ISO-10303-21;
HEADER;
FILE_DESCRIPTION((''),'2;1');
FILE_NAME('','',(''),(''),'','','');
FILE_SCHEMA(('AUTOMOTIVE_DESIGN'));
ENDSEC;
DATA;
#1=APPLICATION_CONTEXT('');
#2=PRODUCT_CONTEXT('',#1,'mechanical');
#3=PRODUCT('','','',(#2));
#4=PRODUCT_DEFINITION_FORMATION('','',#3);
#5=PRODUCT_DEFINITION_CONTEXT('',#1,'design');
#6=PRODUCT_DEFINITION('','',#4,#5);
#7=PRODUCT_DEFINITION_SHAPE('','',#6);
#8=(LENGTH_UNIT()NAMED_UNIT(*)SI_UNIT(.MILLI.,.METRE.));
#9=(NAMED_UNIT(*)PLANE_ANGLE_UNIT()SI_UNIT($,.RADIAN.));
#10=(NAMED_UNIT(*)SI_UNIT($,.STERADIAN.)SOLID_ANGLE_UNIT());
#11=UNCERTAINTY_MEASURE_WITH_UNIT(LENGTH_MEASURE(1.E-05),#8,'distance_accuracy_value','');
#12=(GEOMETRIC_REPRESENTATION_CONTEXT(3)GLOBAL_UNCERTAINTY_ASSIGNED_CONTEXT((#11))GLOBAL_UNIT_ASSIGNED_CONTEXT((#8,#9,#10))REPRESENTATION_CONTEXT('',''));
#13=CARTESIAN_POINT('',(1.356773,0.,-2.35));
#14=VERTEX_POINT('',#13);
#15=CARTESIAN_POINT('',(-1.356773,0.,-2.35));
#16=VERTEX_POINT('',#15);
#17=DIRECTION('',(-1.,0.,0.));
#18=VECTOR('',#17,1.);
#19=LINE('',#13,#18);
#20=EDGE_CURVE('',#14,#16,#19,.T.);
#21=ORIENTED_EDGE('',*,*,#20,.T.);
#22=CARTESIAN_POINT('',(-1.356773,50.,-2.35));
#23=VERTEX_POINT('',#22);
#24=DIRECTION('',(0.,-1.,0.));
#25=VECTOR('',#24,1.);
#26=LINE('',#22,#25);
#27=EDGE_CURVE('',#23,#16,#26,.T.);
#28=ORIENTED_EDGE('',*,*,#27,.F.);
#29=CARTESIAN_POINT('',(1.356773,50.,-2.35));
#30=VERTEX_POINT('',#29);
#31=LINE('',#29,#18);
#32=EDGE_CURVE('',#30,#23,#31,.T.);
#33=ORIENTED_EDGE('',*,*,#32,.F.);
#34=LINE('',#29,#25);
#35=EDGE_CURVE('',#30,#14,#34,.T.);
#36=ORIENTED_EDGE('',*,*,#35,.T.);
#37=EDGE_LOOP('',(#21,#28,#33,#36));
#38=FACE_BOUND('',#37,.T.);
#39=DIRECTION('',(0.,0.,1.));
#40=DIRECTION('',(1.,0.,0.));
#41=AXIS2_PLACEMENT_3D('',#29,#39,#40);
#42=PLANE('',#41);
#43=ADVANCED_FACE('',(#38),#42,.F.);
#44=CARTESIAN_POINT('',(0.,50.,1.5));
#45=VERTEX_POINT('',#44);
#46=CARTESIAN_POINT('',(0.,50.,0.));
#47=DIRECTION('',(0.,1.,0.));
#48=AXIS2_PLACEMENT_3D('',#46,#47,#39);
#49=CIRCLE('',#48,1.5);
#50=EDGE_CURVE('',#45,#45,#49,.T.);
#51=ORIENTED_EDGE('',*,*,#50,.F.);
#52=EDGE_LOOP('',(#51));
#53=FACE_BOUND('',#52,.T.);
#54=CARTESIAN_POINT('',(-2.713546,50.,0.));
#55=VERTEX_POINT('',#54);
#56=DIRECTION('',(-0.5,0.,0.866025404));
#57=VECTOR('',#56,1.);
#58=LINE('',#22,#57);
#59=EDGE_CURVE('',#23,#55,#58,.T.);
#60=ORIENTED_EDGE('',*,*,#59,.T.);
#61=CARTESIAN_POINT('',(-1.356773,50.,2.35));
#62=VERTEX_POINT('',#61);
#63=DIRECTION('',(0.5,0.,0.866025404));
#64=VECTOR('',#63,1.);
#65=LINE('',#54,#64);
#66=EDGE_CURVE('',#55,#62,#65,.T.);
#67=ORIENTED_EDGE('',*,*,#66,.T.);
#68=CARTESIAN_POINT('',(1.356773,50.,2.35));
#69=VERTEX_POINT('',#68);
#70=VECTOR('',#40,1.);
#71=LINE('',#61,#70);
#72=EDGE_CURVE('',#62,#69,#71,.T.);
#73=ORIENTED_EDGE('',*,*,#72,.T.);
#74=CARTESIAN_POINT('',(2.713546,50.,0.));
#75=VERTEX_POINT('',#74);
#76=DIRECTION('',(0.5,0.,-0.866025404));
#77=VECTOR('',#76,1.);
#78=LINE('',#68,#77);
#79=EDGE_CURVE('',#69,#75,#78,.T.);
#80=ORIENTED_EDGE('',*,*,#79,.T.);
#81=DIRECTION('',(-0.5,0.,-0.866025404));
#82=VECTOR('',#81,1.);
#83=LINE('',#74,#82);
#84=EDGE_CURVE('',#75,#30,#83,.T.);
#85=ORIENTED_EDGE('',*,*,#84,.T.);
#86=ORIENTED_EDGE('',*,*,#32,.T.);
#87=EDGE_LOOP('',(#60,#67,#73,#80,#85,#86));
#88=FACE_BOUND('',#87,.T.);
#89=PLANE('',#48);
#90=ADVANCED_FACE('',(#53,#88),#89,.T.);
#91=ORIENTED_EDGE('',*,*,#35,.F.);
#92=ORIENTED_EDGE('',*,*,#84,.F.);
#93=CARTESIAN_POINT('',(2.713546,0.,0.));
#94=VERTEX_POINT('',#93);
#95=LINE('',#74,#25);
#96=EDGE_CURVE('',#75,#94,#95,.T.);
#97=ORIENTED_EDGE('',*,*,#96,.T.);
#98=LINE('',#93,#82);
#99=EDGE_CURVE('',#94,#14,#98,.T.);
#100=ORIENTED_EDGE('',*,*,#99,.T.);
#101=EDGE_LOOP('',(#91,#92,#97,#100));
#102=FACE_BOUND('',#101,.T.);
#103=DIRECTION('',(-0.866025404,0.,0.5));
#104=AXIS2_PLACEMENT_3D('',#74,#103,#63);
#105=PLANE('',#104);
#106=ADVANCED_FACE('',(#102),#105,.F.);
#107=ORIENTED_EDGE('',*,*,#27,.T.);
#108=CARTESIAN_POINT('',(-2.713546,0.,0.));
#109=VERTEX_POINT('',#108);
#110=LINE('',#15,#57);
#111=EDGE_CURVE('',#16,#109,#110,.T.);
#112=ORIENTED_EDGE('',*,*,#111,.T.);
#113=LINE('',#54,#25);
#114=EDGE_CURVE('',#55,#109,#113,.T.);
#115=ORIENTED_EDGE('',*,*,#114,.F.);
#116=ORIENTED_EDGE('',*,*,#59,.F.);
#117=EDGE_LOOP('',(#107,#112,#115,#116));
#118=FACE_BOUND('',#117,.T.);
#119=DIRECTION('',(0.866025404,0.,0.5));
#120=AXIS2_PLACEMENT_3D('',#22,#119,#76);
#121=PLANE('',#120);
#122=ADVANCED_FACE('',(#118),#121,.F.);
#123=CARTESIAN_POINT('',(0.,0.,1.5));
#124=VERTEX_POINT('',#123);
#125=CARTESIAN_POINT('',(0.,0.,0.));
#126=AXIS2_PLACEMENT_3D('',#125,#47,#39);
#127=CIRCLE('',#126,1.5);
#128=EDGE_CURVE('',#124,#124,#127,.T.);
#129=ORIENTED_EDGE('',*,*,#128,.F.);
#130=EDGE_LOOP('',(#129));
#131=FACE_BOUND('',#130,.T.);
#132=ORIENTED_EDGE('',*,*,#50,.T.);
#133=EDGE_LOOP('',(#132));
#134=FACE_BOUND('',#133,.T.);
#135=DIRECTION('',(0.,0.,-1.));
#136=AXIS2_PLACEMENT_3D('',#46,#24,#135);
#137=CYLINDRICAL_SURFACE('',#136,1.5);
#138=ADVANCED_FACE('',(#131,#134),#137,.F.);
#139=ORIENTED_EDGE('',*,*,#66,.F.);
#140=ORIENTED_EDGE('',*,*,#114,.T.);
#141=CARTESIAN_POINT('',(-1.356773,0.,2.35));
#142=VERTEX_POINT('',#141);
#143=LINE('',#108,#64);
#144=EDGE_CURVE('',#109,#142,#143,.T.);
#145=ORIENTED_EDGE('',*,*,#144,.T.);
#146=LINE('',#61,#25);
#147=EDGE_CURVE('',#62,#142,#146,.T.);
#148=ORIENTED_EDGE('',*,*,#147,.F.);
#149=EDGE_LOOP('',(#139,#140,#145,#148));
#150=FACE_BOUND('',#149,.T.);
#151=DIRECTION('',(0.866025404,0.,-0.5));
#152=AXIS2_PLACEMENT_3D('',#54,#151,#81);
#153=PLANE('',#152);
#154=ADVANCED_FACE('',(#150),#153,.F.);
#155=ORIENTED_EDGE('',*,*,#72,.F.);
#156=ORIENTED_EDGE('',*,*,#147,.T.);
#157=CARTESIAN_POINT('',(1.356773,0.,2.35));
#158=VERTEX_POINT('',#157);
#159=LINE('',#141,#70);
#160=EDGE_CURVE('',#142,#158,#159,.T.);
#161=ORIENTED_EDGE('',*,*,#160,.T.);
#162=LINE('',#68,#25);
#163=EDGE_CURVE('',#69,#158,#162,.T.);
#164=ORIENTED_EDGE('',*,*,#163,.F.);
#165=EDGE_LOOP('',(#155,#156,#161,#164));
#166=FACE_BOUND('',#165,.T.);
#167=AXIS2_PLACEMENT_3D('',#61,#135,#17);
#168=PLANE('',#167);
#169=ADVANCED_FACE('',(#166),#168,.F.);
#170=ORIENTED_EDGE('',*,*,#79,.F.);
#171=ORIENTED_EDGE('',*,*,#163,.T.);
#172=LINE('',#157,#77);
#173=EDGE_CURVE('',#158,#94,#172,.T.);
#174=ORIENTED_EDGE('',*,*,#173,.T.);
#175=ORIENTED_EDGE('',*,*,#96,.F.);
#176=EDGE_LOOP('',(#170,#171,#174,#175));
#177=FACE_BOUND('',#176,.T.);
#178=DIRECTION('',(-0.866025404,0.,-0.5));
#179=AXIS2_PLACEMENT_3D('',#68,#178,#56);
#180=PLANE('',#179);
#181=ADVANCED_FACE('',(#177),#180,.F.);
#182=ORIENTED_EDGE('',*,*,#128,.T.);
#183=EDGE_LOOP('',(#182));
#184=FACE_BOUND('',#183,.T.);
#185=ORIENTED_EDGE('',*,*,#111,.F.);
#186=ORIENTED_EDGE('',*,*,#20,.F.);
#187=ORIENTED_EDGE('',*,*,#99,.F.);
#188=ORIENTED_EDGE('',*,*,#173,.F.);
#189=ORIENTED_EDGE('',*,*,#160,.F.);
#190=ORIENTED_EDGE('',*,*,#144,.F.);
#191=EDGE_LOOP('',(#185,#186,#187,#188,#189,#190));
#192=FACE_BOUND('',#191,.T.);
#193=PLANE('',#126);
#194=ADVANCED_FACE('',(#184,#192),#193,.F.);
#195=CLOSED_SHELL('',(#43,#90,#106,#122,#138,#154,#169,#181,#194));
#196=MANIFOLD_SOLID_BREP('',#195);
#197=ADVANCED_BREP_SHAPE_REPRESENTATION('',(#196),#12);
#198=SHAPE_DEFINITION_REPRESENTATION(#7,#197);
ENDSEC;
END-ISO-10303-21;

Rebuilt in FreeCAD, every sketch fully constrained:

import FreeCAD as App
import Part
import Sketcher
from FreeCAD import Vector
Q = App.Units.Quantity

doc = App.newDocument("Part")
body = doc.addObject("PartDesign::Body", "Body")

# Sketch on XZ plane
sketch1 = body.newObject("Sketcher::SketchObject", "Sketch")
sketch1.AttachmentSupport = (doc.getObject("XZ_Plane"), [""])
sketch1.MapMode = "FlatFace"
sketch1.addGeometry(Part.LineSegment(Vector(2.7, 0, 0), Vector(1.4, -2.4, 0)), False)
sketch1.addGeometry(Part.LineSegment(Vector(1.4, -2.4, 0), Vector(-1.4, -2.4, 0)), False)
sketch1.addGeometry(Part.LineSegment(Vector(-1.4, -2.4, 0), Vector(-2.7, 0, 0)), False)
sketch1.addGeometry(Part.LineSegment(Vector(-2.7, 0, 0), Vector(-1.4, 2.4, 0)), False)
sketch1.addGeometry(Part.LineSegment(Vector(-1.4, 2.4, 0), Vector(1.4, 2.4, 0)), False)
sketch1.addGeometry(Part.LineSegment(Vector(1.4, 2.4, 0), Vector(2.7, 0, 0)), False)
sketch1.addGeometry(Part.Circle(Vector(0, 0, 0), Vector(0, 0, 1), 1.5), False)
sketch1.addConstraint(Sketcher.Constraint("Coincident", 0, 2, 1, 1))
sketch1.addConstraint(Sketcher.Constraint("Coincident", 1, 2, 2, 1))
sketch1.addConstraint(Sketcher.Constraint("Coincident", 2, 2, 3, 1))
sketch1.addConstraint(Sketcher.Constraint("Coincident", 3, 2, 4, 1))
sketch1.addConstraint(Sketcher.Constraint("Coincident", 4, 2, 5, 1))
sketch1.addConstraint(Sketcher.Constraint("Coincident", 5, 2, 0, 1))
sketch1.addConstraint(Sketcher.Constraint("Horizontal", 1))
sketch1.addConstraint(Sketcher.Constraint("Horizontal", 4))
sketch1.addConstraint(Sketcher.Constraint("Coincident", 6, 3, -1, 1))
sketch1.addConstraint(Sketcher.Constraint("Symmetric", 0, 2, 3, 2, -1, 1))
sketch1.addConstraint(Sketcher.Constraint("Symmetric", 2, 2, 5, 2, -1, 1))
sketch1.addConstraint(Sketcher.Constraint("PointOnObject", 2, 2, -1))
sketch1.addConstraint(Sketcher.Constraint("Parallel", 2, 5))
sketch1.addConstraint(Sketcher.Constraint("Vertical", 1, 2, 3, 2))
sketch1.addConstraint(Sketcher.Constraint("Diameter", 6, Q("3 mm")))
sketch1.addConstraint(Sketcher.Constraint("Angle", 0, Q("-120 deg")))
sketch1.addConstraint(Sketcher.Constraint("DistanceY", 1, 2, 3, 2, Q("4.7 mm")))
sketch1.addConstraint(Sketcher.Constraint("DistanceX", 1, 2, 1, 1, Q("2.713546 mm")))
pad1 = body.newObject("PartDesign::Pad", "Pad")
pad1.Profile = sketch1
pad1.Length = 50
pad1.Reversed = True

doc.recompute()
